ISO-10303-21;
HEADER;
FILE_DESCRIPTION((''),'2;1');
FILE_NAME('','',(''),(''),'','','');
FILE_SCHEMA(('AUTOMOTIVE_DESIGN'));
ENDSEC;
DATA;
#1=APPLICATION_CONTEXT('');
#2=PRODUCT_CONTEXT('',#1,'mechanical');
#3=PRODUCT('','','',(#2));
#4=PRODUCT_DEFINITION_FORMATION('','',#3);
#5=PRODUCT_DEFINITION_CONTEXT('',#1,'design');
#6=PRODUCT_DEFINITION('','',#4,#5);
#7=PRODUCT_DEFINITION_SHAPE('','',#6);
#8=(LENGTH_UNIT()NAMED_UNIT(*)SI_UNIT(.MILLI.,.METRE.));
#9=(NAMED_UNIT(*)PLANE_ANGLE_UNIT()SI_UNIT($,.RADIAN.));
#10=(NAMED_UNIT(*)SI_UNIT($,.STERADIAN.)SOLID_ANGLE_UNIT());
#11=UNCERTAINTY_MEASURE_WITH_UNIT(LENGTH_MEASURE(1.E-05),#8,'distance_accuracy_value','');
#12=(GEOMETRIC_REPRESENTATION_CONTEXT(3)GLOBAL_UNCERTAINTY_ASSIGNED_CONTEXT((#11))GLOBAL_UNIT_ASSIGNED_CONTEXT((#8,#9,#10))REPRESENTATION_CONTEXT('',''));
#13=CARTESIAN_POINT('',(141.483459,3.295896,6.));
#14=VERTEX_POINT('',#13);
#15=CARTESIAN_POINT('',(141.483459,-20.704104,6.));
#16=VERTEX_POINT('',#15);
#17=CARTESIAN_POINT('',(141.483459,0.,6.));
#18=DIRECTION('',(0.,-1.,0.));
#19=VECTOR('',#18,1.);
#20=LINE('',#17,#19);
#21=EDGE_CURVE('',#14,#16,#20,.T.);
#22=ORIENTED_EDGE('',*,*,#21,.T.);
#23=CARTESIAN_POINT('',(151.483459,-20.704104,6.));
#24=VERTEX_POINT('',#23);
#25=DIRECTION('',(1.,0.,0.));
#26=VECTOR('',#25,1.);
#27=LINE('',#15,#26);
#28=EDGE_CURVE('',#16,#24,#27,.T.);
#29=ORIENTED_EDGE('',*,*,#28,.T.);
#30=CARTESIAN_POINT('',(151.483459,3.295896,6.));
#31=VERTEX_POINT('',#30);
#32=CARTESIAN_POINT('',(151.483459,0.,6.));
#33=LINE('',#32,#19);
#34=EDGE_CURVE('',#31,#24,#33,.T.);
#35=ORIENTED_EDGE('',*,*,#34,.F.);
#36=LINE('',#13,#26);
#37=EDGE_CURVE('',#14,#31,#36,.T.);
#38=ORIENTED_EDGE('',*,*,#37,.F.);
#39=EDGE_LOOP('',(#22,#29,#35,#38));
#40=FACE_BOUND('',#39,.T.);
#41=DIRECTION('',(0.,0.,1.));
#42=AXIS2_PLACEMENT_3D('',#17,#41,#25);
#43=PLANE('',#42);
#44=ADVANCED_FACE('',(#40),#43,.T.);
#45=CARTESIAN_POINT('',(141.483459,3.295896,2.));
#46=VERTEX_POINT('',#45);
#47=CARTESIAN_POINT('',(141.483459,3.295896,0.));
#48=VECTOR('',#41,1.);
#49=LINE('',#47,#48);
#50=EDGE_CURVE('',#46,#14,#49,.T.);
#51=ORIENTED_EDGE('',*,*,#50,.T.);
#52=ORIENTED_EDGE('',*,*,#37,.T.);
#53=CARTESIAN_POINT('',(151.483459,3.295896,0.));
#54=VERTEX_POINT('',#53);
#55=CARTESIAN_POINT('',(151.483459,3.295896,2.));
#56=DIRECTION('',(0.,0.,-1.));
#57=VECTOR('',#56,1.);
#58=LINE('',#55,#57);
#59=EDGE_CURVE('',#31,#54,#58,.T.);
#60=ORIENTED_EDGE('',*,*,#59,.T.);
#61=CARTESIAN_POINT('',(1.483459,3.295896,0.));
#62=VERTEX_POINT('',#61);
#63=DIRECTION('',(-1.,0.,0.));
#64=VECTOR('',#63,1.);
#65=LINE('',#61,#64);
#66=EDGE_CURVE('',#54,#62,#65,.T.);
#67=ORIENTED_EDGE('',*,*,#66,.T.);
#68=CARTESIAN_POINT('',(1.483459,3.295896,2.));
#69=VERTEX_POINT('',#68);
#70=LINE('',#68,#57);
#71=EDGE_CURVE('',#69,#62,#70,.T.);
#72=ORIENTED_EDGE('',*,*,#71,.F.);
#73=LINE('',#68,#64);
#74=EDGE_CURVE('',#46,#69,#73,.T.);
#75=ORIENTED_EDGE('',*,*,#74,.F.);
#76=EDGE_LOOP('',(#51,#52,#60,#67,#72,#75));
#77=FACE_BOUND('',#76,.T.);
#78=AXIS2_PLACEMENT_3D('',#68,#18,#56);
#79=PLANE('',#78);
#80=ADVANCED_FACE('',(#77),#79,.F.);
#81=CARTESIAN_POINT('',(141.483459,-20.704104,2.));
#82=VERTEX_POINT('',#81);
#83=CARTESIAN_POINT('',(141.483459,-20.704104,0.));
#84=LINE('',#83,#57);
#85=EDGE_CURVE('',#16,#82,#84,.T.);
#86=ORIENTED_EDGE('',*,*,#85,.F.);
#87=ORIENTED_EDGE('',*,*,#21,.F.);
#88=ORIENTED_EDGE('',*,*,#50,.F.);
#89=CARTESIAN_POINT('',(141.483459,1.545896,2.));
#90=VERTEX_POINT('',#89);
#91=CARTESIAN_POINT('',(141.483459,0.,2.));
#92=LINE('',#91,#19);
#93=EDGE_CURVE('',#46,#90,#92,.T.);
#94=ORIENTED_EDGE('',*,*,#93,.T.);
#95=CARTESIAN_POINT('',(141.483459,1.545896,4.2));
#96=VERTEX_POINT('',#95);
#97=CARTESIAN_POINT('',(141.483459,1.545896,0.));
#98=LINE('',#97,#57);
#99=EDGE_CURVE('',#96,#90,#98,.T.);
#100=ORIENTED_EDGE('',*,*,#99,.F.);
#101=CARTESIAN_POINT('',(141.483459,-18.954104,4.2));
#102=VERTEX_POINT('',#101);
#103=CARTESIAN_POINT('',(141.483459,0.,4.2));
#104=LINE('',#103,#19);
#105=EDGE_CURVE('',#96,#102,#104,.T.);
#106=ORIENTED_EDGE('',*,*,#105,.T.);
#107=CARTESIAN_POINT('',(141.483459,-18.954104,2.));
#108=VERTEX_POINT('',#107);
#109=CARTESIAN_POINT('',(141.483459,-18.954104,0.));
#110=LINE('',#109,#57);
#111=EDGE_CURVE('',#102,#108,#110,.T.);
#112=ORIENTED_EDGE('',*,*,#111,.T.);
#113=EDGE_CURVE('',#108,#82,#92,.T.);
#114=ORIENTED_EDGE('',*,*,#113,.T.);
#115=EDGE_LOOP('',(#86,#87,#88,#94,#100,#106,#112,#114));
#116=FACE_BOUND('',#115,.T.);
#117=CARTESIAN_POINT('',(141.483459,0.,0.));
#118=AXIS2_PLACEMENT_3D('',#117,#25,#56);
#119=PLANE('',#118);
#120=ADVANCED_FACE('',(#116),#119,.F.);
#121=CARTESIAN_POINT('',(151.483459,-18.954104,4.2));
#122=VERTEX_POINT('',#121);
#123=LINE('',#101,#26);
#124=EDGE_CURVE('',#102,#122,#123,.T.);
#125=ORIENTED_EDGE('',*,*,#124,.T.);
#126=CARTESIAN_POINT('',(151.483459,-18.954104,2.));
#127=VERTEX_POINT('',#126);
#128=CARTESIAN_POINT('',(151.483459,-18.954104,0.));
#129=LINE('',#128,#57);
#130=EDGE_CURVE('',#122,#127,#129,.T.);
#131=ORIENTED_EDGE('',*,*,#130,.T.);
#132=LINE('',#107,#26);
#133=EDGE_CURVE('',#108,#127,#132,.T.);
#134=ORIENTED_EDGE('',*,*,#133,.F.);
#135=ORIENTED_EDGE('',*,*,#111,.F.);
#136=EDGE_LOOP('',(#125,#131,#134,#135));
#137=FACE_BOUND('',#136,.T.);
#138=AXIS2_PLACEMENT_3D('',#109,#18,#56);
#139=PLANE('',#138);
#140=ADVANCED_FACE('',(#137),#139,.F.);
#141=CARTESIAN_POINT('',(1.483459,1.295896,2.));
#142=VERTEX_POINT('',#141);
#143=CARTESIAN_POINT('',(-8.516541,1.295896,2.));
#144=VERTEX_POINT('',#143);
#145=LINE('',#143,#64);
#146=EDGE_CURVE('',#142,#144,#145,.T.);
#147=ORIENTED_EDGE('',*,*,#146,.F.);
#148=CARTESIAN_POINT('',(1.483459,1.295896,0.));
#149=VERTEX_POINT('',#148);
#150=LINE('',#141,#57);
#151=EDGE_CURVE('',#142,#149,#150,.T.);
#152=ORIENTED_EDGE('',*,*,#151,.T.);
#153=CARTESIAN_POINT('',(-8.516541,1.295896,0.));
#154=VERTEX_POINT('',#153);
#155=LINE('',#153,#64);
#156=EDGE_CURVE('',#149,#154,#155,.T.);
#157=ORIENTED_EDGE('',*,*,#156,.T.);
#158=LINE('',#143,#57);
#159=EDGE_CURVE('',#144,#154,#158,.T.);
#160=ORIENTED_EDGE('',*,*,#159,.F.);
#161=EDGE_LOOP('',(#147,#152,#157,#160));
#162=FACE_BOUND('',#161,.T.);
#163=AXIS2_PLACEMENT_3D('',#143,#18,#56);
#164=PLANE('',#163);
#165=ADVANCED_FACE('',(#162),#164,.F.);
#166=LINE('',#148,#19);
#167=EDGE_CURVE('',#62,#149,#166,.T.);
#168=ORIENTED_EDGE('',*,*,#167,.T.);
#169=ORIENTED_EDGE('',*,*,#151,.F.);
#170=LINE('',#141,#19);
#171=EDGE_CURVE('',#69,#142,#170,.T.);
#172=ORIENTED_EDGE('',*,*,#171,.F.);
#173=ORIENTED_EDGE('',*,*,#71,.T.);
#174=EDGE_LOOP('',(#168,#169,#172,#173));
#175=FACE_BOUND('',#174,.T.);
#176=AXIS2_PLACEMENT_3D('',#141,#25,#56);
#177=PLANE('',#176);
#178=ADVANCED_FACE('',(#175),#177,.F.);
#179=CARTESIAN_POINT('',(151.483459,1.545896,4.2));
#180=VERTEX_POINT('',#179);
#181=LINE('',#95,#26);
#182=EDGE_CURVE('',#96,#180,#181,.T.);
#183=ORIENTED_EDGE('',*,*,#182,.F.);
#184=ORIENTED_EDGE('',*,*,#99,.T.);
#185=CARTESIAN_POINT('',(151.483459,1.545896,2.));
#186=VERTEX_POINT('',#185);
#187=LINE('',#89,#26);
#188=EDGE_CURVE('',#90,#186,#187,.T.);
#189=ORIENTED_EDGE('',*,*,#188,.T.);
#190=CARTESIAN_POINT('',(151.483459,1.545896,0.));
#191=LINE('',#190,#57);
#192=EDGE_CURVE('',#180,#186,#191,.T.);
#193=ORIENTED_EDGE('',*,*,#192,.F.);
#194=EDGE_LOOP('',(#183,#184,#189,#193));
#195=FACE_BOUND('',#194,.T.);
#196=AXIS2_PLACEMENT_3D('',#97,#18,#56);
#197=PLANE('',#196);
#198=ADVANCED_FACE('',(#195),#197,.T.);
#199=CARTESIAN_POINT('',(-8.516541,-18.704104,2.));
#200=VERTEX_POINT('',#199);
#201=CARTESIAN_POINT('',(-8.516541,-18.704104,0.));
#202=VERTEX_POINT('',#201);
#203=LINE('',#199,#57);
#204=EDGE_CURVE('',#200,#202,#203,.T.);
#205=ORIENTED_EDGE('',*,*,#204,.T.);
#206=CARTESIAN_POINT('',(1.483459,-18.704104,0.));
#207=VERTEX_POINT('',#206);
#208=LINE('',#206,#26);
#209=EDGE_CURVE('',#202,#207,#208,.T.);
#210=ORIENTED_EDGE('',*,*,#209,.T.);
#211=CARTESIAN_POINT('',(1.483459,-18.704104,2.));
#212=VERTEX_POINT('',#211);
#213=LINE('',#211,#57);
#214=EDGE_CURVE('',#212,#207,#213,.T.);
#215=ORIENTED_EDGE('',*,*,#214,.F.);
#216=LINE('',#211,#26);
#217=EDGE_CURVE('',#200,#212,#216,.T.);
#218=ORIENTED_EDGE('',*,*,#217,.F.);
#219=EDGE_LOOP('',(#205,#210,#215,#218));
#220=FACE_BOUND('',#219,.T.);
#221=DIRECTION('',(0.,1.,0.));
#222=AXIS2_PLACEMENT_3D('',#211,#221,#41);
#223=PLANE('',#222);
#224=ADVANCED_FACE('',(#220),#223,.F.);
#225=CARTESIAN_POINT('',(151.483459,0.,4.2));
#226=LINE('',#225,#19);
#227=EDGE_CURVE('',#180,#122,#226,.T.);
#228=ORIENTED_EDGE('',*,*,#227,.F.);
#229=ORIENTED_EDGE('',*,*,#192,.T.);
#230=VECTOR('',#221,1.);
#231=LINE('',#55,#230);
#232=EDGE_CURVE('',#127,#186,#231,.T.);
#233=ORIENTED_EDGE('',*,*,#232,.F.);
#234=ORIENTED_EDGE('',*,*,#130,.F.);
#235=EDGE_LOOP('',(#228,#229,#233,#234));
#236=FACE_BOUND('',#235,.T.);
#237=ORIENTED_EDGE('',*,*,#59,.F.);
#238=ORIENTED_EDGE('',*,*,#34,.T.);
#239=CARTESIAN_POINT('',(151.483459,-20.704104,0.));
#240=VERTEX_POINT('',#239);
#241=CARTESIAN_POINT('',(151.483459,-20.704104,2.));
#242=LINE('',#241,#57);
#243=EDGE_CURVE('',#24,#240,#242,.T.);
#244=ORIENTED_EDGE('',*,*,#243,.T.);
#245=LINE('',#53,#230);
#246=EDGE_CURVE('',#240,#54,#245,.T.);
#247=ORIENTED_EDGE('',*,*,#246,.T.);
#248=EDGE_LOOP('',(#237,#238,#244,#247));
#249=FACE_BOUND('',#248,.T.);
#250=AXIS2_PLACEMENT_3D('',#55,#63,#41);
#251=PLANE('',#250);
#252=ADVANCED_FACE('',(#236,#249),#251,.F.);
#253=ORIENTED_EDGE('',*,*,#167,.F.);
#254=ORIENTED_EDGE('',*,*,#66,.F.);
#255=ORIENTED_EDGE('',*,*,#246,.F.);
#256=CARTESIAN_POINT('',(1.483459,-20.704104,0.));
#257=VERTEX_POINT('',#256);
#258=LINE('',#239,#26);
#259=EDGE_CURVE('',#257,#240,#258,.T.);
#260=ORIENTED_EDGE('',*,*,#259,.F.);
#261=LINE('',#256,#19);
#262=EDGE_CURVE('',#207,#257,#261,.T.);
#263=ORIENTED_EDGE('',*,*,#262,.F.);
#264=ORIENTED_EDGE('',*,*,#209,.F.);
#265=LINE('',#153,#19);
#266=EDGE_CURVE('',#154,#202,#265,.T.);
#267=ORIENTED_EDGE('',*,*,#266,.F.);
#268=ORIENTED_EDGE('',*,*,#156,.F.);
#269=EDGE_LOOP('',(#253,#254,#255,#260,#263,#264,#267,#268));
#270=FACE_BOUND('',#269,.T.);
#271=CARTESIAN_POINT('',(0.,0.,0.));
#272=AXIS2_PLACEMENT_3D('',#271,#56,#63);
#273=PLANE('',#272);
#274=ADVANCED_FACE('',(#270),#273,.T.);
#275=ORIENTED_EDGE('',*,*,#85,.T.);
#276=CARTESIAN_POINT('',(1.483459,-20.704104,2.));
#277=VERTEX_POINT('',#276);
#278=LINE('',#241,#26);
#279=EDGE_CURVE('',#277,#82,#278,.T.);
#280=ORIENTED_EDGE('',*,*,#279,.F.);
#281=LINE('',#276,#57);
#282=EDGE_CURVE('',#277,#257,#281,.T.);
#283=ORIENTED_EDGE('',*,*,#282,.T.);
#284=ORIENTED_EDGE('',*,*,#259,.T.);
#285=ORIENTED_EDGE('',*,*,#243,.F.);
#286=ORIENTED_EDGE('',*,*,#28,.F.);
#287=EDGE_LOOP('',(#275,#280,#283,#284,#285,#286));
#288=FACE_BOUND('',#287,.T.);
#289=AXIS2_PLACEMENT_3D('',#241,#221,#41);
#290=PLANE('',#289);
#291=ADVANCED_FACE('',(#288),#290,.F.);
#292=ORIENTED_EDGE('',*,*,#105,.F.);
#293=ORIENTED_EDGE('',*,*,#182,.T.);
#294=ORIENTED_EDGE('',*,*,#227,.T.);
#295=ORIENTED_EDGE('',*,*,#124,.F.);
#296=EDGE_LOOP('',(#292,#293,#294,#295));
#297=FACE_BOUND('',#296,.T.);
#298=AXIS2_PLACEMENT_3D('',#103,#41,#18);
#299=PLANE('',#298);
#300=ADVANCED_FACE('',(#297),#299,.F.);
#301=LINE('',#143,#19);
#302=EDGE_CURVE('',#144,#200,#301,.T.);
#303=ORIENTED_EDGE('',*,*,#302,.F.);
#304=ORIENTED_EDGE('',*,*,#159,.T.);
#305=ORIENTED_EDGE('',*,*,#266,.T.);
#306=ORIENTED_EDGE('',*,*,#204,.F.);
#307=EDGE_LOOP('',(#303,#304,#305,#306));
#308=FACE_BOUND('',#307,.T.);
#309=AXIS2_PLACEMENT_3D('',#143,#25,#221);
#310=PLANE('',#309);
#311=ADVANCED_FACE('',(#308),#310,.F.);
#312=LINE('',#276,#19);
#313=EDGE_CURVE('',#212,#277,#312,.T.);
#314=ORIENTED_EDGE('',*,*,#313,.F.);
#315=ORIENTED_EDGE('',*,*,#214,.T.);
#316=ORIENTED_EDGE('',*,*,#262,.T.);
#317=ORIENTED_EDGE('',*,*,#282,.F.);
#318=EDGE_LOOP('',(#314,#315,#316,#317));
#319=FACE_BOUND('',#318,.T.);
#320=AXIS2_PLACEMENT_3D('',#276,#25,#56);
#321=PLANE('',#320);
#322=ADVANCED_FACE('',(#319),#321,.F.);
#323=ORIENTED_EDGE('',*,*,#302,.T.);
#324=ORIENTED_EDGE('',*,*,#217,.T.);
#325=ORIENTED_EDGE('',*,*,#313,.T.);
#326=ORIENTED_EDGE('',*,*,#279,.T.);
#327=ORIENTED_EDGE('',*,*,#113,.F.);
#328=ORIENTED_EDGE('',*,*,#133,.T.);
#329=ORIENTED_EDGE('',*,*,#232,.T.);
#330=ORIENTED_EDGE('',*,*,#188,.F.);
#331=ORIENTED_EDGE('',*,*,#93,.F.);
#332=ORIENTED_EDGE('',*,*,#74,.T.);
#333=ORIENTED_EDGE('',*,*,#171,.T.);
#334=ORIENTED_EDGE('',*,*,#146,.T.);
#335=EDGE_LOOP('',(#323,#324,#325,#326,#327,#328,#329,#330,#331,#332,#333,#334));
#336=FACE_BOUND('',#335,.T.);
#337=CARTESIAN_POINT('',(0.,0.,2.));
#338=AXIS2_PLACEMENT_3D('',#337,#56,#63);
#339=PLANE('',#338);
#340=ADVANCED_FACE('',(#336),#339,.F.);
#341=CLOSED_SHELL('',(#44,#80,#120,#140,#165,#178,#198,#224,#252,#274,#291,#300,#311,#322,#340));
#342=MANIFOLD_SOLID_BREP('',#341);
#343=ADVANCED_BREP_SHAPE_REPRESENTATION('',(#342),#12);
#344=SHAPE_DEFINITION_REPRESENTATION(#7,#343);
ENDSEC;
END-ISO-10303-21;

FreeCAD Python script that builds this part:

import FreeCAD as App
import Part
import Sketcher
from FreeCAD import Vector
Q = App.Units.Quantity

doc = App.newDocument("Part")
body = doc.addObject("PartDesign::Body", "Body")

# Sketch on XY plane
sketch1 = body.newObject("Sketcher::SketchObject", "Sketch")
sketch1.AttachmentSupport = (doc.getObject("XY_Plane"), [""])
sketch1.MapMode = "FlatFace"
sketch1.addGeometry([
    Part.LineSegment(Vector(1.483459, 1.295896, 0), Vector(-8.516541, 1.295896, 0)),  # 0
    Part.LineSegment(Vector(-8.516541, 1.295896, 0), Vector(-8.516541, -18.704104, 0)),  # 1
    Part.LineSegment(Vector(-8.516541, -18.704104, 0), Vector(1.483459, -18.704104, 0)),  # 2
    Part.LineSegment(Vector(1.483459, -18.704104, 0), Vector(1.483459, -20.704104, 0)),  # 3
    Part.LineSegment(Vector(1.483459, -20.704104, 0), Vector(151.483459, -20.704104, 0)),  # 4
    Part.LineSegment(Vector(151.483459, -20.704104, 0), Vector(151.483459, 3.295896, 0)),  # 5
    Part.LineSegment(Vector(151.483459, 3.295896, 0), Vector(1.483459, 3.295896, 0)),  # 6
    Part.LineSegment(Vector(1.483459, 3.295896, 0), Vector(1.483459, 1.295896, 0)),  # 7
], False)
sketch1.addConstraint([
    Sketcher.Constraint("Coincident", 0, 2, 1, 1),
    Sketcher.Constraint("Coincident", 1, 2, 2, 1),
    Sketcher.Constraint("Coincident", 2, 2, 3, 1),
    Sketcher.Constraint("Coincident", 3, 2, 4, 1),
    Sketcher.Constraint("Coincident", 4, 2, 5, 1),
    Sketcher.Constraint("Coincident", 5, 2, 6, 1),
    Sketcher.Constraint("Coincident", 6, 2, 7, 1),
    Sketcher.Constraint("Coincident", 7, 2, 0, 1),
    Sketcher.Constraint("Horizontal", 0),
    Sketcher.Constraint("Vertical", 1),
    Sketcher.Constraint("Horizontal", 2),
    Sketcher.Constraint("Vertical", 3),
    Sketcher.Constraint("Horizontal", 4),
    Sketcher.Constraint("Vertical", 5),
    Sketcher.Constraint("Horizontal", 6),
    Sketcher.Constraint("Vertical", 7),
    Sketcher.Constraint("Vertical", 3, 2, 6, 2),
    Sketcher.Constraint("Equal", 3, 7),
    Sketcher.Constraint("DistanceX", 0, 2, 0, 1, Q("10 mm")),
    Sketcher.Constraint("DistanceX", 4, 1, 4, 2, Q("150 mm")),
    Sketcher.Constraint("DistanceY", 1, 2, 1, 1, Q("20 mm")),
    Sketcher.Constraint("DistanceY", 3, 2, 3, 1, Q("2 mm")),
    Sketcher.Constraint("DistanceX", 0, 2, -1, 1, Q("8.516541 mm")),
    Sketcher.Constraint("DistanceY", -1, 1, 0, 2, Q("1.295896 mm")),
])
pad1 = body.newObject("PartDesign::Pad", "Pad")
pad1.Profile = sketch1
pad1.Length = 2

# Sketch on YZ plane
sketch2 = body.newObject("Sketcher::SketchObject", "Sketch001")
sketch2.AttachmentSupport = (doc.getObject("YZ_Plane"), [""])
sketch2.MapMode = "FlatFace"
sketch2.AttachmentOffset = App.Placement(Vector(0, 0, 151.483459), App.Rotation())
sketch2.addGeometry([
    Part.LineSegment(Vector(1.545896, 2, 0), Vector(3.295896, 2, 0)),  # 0
    Part.LineSegment(Vector(3.295896, 2, 0), Vector(3.295896, 6, 0)),  # 1
    Part.LineSegment(Vector(3.295896, 6, 0), Vector(-20.704104, 6, 0)),  # 2
    Part.LineSegment(Vector(-20.704104, 6, 0), Vector(-20.704104, 2, 0)),  # 3
    Part.LineSegment(Vector(-20.704104, 2, 0), Vector(-18.954104, 2, 0)),  # 4
    Part.LineSegment(Vector(-18.954104, 2, 0), Vector(-18.954104, 4.2, 0)),  # 5
    Part.LineSegment(Vector(-18.954104, 4.2, 0), Vector(1.545896, 4.2, 0)),  # 6
    Part.LineSegment(Vector(1.545896, 4.2, 0), Vector(1.545896, 2, 0)),  # 7
], False)
sketch2.addConstraint([
    Sketcher.Constraint("Coincident", 0, 2, 1, 1),
    Sketcher.Constraint("Coincident", 1, 2, 2, 1),
    Sketcher.Constraint("Coincident", 2, 2, 3, 1),
    Sketcher.Constraint("Coincident", 3, 2, 4, 1),
    Sketcher.Constraint("Coincident", 4, 2, 5, 1),
    Sketcher.Constraint("Coincident", 5, 2, 6, 1),
    Sketcher.Constraint("Coincident", 6, 2, 7, 1),
    Sketcher.Constraint("Coincident", 7, 2, 0, 1),
    Sketcher.Constraint("Horizontal", 0),
    Sketcher.Constraint("Vertical", 1),
    Sketcher.Constraint("Horizontal", 2),
    Sketcher.Constraint("Vertical", 3),
    Sketcher.Constraint("Horizontal", 4),
    Sketcher.Constraint("Vertical", 5),
    Sketcher.Constraint("Horizontal", 6),
    Sketcher.Constraint("Vertical", 7),
    Sketcher.Constraint("Horizontal", 0, 2, 3, 2),
    Sketcher.Constraint("Equal", 0, 4),
    Sketcher.Constraint("DistanceX", 2, 2, 2, 1, Q("24 mm")),
    Sketcher.Constraint("DistanceY", 1, 1, 1, 2, Q("4 mm")),
    Sketcher.Constraint("DistanceX", 6, 1, 6, 2, Q("20.5 mm")),
    Sketcher.Constraint("DistanceY", 5, 1, 5, 2, Q("2.2 mm")),
    Sketcher.Constraint("DistanceY", -1, 1, 0, 2, Q("2 mm")),
    Sketcher.Constraint("DistanceX", -1, 1, 0, 2, Q("3.295896 mm")),
])
pad2 = body.newObject("PartDesign::Pad", "Pad001")
pad2.Profile = sketch2
pad2.Length = 10
pad2.Reversed = True

doc.recompute()
